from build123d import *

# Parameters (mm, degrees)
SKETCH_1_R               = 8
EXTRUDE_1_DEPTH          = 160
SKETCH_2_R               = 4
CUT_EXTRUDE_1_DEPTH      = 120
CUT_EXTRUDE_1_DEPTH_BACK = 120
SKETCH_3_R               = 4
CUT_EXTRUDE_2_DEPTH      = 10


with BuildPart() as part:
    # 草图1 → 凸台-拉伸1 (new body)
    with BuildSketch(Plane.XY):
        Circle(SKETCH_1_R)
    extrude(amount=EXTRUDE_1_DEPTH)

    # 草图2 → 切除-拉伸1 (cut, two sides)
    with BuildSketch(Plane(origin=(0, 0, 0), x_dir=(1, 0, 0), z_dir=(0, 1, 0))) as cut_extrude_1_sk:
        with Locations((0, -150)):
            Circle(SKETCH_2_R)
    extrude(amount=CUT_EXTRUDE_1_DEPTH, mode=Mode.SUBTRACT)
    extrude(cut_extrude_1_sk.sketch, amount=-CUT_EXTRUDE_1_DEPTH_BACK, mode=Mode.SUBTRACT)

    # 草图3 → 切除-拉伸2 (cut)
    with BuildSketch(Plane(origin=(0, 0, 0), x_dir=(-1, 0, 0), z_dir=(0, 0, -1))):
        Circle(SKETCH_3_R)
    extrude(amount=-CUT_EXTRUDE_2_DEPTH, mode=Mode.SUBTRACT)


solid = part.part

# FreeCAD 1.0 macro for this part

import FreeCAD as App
import Part
import Sketcher

V = App.Vector
Q = App.Units.Quantity

doc = App.newDocument("Part")
body = doc.addObject("PartDesign::Body", "Body")

# Sketch on XY plane
sketch1 = body.newObject("Sketcher::SketchObject", "Sketch")
sketch1.AttachmentSupport = (doc.getObject("XY_Plane"), [""])
sketch1.MapMode = "FlatFace"
sketch1.addGeometry(Part.Circle(V(0, 0, 0), V(0, 0, 1), 8), False)
sketch1.addConstraint([
    Sketcher.Constraint("Coincident", 0, 3, -1, 1),
    Sketcher.Constraint("Diameter", 0, Q("16 mm")),
])
pad1 = body.newObject("PartDesign::Pad", "Pad")
pad1.Profile = sketch1
pad1.Length = 160

# Sketch on XZ plane
sketch2 = body.newObject("Sketcher::SketchObject", "Sketch001")
sketch2.AttachmentSupport = (doc.getObject("XZ_Plane"), [""])
sketch2.MapMode = "FlatFace"
sketch2.addGeometry(Part.Circle(V(0, 150, 0), V(0, 0, 1), 4), False)
sketch2.addConstraint([
    Sketcher.Constraint("PointOnObject", 0, 3, -2),
    Sketcher.Constraint("Diameter", 0, Q("8 mm")),
    Sketcher.Constraint("DistanceY", -1, 1, 0, 3, Q("150 mm")),
])
pocket1 = body.newObject("PartDesign::Pocket", "Pocket")
pocket1.Profile = sketch2
pocket1.Type = "ThroughAll"
pocket1.Midplane = True

# Sketch on XY plane
sketch3 = body.newObject("Sketcher::SketchObject", "Sketch002")
sketch3.AttachmentSupport = (doc.getObject("XY_Plane"), [""])
sketch3.MapMode = "FlatFace"
sketch3.addGeometry(Part.Circle(V(0, 0, 0), V(0, 0, 1), 4), False)
sketch3.addConstraint([
    Sketcher.Constraint("Coincident", 0, 3, -1, 1),
    Sketcher.Constraint("Diameter", 0, Q("8 mm")),
])
pocket2 = body.newObject("PartDesign::Pocket", "Pocket001")
pocket2.Profile = sketch3
pocket2.Length = 10
pocket2.Reversed = True

doc.recompute()
